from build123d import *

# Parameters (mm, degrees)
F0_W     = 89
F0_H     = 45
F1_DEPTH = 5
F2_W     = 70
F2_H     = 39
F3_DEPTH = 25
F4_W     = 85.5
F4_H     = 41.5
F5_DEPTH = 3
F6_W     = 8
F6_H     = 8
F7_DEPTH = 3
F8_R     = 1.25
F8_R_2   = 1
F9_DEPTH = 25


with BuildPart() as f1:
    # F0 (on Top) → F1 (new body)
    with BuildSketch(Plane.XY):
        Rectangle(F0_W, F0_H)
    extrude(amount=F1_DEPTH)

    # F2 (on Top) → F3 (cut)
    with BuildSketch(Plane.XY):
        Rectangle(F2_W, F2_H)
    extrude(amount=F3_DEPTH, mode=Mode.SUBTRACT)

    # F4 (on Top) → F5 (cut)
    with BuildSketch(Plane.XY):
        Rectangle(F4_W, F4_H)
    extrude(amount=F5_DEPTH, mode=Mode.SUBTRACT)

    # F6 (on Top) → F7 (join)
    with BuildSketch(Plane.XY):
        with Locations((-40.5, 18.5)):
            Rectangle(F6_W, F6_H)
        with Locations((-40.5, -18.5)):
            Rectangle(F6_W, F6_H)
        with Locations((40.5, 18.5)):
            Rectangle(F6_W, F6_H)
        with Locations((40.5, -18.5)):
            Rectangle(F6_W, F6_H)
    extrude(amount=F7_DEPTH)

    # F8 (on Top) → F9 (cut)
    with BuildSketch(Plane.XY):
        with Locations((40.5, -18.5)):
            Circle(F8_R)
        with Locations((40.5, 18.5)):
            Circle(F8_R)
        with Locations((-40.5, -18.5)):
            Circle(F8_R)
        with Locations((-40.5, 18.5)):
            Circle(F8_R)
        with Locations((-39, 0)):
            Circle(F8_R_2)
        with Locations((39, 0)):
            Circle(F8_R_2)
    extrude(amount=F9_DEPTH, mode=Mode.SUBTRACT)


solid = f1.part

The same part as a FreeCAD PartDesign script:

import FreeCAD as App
import Part
import Sketcher
from FreeCAD import Vector


def add_polygon(sketch, points):
    """Adds a closed chain of lines whose ends are joined by coincident constraints."""
    first, n = sketch.GeometryCount, len(points)
    for a, b in zip(points, points[1:] + points[:1]):
        sketch.addGeometry(Part.LineSegment(App.Vector(*a, 0), App.Vector(*b, 0)), False)
    for i in range(n):
        sketch.addConstraint(Sketcher.Constraint("Coincident", first + i, 2, first + (i + 1) % n, 1))

doc = App.newDocument("Part")
body = doc.addObject("PartDesign::Body", "Body")

# Sketch on XY plane
sketch1 = body.newObject("Sketcher::SketchObject", "Sketch")
sketch1.AttachmentSupport = (doc.getObject("XY_Plane"), [""])
sketch1.MapMode = "FlatFace"
add_polygon(sketch1, [(-44, 22), (-44, -22), (44, -22), (44, 22)])  # lines 0-3
sketch1.addConstraint(Sketcher.Constraint("Vertical", 0))
sketch1.addConstraint(Sketcher.Constraint("Horizontal", 1))
sketch1.addConstraint(Sketcher.Constraint("Vertical", 2))
sketch1.addConstraint(Sketcher.Constraint("Horizontal", 3))
sketch1.addConstraint(Sketcher.Constraint("Symmetric", 0, 2, 2, 2, -1, 1))
sketch1.addConstraint(Sketcher.Constraint("DistanceX", 1, 1, 1, 2, 89.0))
sketch1.addConstraint(Sketcher.Constraint("DistanceY", 0, 2, 0, 1, 45.0))
pad1 = body.newObject("PartDesign::Pad", "Pad")
pad1.Profile = sketch1
pad1.Length = 5

# Sketch on XY plane
sketch2 = body.newObject("Sketcher::SketchObject", "Sketch001")
sketch2.AttachmentSupport = (doc.getObject("XY_Plane"), [""])
sketch2.MapMode = "FlatFace"
add_polygon(sketch2, [(-35, 20), (-35, -20), (35, -20), (35, 20)])  # lines 0-3
sketch2.addConstraint(Sketcher.Constraint("Vertical", 0))
sketch2.addConstraint(Sketcher.Constraint("Horizontal", 1))
sketch2.addConstraint(Sketcher.Constraint("Vertical", 2))
sketch2.addConstraint(Sketcher.Constraint("Horizontal", 3))
sketch2.addConstraint(Sketcher.Constraint("Symmetric", 0, 2, 2, 2, -1, 1))
sketch2.addConstraint(Sketcher.Constraint("DistanceX", 1, 1, 1, 2, 70.0))
sketch2.addConstraint(Sketcher.Constraint("DistanceY", 0, 2, 0, 1, 39.0))
pocket1 = body.newObject("PartDesign::Pocket", "Pocket")
pocket1.Profile = sketch2
pocket1.Length = 25
pocket1.Reversed = True

# Sketch on XY plane
sketch3 = body.newObject("Sketcher::SketchObject", "Sketch002")
sketch3.AttachmentSupport = (doc.getObject("XY_Plane"), [""])
sketch3.MapMode = "FlatFace"
add_polygon(sketch3, [(-43, 21), (-43, -21), (43, -21), (43, 21)])  # lines 0-3
sketch3.addConstraint(Sketcher.Constraint("Vertical", 0))
sketch3.addConstraint(Sketcher.Constraint("Horizontal", 1))
sketch3.addConstraint(Sketcher.Constraint("Vertical", 2))
sketch3.addConstraint(Sketcher.Constraint("Horizontal", 3))
sketch3.addConstraint(Sketcher.Constraint("Symmetric", 0, 2, 2, 2, -1, 1))
sketch3.addConstraint(Sketcher.Constraint("DistanceX", 1, 1, 1, 2, 85.5))
sketch3.addConstraint(Sketcher.Constraint("DistanceY", 0, 2, 0, 1, 41.5))
pocket2 = body.newObject("PartDesign::Pocket", "Pocket001")
pocket2.Profile = sketch3
pocket2.Length = 3
pocket2.Reversed = True

# Sketch on XY plane
sketch4 = body.newObject("Sketcher::SketchObject", "Sketch003")
sketch4.AttachmentSupport = (doc.getObject("XY_Plane"), [""])
sketch4.MapMode = "FlatFace"
add_polygon(sketch4, [(-44, 22), (-44, 14), (-36, 14), (-36, 22)])  # lines 0-3
add_polygon(sketch4, [(-44, -14), (-44, -22), (-36, -22), (-36, -14)])  # lines 4-7
add_polygon(sketch4, [(36, 22), (36, 14), (44, 14), (44, 22)])  # lines 8-11
add_polygon(sketch4, [(36, -14), (36, -22), (44, -22), (44, -14)])  # lines 12-15
sketch4.addConstraint(Sketcher.Constraint("Vertical", 0))
sketch4.addConstraint(Sketcher.Constraint("Horizontal", 1))
sketch4.addConstraint(Sketcher.Constraint("Vertical", 2))
sketch4.addConstraint(Sketcher.Constraint("Horizontal", 3))
sketch4.addConstraint(Sketcher.Constraint("Vertical", 4))
sketch4.addConstraint(Sketcher.Constraint("Horizontal", 5))
sketch4.addConstraint(Sketcher.Constraint("Vertical", 6))
sketch4.addConstraint(Sketcher.Constraint("Horizontal", 7))
sketch4.addConstraint(Sketcher.Constraint("Vertical", 8))
sketch4.addConstraint(Sketcher.Constraint("Horizontal", 9))
sketch4.addConstraint(Sketcher.Constraint("Vertical", 10))
sketch4.addConstraint(Sketcher.Constraint("Horizontal", 11))
sketch4.addConstraint(Sketcher.Constraint("Vertical", 12))
sketch4.addConstraint(Sketcher.Constraint("Horizontal", 13))
sketch4.addConstraint(Sketcher.Constraint("Vertical", 14))
sketch4.addConstraint(Sketcher.Constraint("Horizontal", 15))
sketch4.addConstraint(Sketcher.Constraint("Symmetric", 6, 2, 8, 2, -1, 1))
sketch4.addConstraint(Sketcher.Constraint("Symmetric", 4, 2, 10, 2, -1, 1))
sketch4.addConstraint(Sketcher.Constraint("Symmetric", 2, 2, 12, 2, -1, 1))
sketch4.addConstraint(Sketcher.Constraint("Symmetric", 0, 2, 14, 2, -1, 1))
sketch4.addConstraint(Sketcher.Constraint("Symmetric", 1, 2, 8, 2, -2))
sketch4.addConstraint(Sketcher.Constraint("Symmetric", 3, 2, 10, 2, -2))
sketch4.addConstraint(Sketcher.Constraint("Equal", 15, 0))
sketch4.addConstraint(Sketcher.Constraint("DistanceX", 1, 1, 1, 2, 8.0))
sketch4.addConstraint(Sketcher.Constraint("DistanceY", 4, 2, 0, 2, 37.0))
sketch4.addConstraint(Sketcher.Constraint("DistanceX", 1, 2, 8, 2, 73.0))
pad2 = body.newObject("PartDesign::Pad", "Pad001")
pad2.Profile = sketch4
pad2.Length = 3

# Sketch on XY plane
sketch5 = body.newObject("Sketcher::SketchObject", "Sketch004")
sketch5.AttachmentSupport = (doc.getObject("XY_Plane"), [""])
sketch5.MapMode = "FlatFace"
sketch5.addGeometry(Part.Circle(Vector(40.5, -18.5, 0), Vector(0, 0, 1), 1.2), False)
sketch5.addGeometry(Part.Circle(Vector(40.5, 18.5, 0), Vector(0, 0, 1), 1.2), False)
sketch5.addGeometry(Part.Circle(Vector(-40.5, -18.5, 0), Vector(0, 0, 1), 1.2), False)
sketch5.addGeometry(Part.Circle(Vector(-40.5, 18.5, 0), Vector(0, 0, 1), 1.2), False)
sketch5.addGeometry(Part.Circle(Vector(-39, 0, 0), Vector(0, 0, 1), 1), False)
sketch5.addGeometry(Part.Circle(Vector(39, 0, 0), Vector(0, 0, 1), 1), False)
sketch5.addConstraint(Sketcher.Constraint("Equal", 0, 1))
sketch5.addConstraint(Sketcher.Constraint("Equal", 1, 2))
sketch5.addConstraint(Sketcher.Constraint("Equal", 2, 3))
sketch5.addConstraint(Sketcher.Constraint("Equal", 4, 5))
sketch5.addConstraint(Sketcher.Constraint("Symmetric", 1, 3, 2, 3, -1, 1))
sketch5.addConstraint(Sketcher.Constraint("Symmetric", 0, 3, 3, 3, -1, 1))
sketch5.addConstraint(Sketcher.Constraint("Symmetric", 4, 3, 5, 3, -1, 1))
sketch5.addConstraint(Sketcher.Constraint("Symmetric", 0, 3, 2, 3, -2))
sketch5.addConstraint(Sketcher.Constraint("PointOnObject", 4, 3, -1))
sketch5.addConstraint(Sketcher.Constraint("Diameter", 4, 2.0))
sketch5.addConstraint(Sketcher.Constraint("Diameter", 0, 2.5))
sketch5.addConstraint(Sketcher.Constraint("DistanceX", 4, 3, -1, 1, 39.0))
sketch5.addConstraint(Sketcher.Constraint("DistanceY", 0, 3, 1, 3, 37.0))
sketch5.addConstraint(Sketcher.Constraint("DistanceX", 2, 3, 0, 3, 81.0))
pocket3 = body.newObject("PartDesign::Pocket", "Pocket002")
pocket3.Profile = sketch5
pocket3.Length = 25
pocket3.Reversed = True

doc.recompute()
